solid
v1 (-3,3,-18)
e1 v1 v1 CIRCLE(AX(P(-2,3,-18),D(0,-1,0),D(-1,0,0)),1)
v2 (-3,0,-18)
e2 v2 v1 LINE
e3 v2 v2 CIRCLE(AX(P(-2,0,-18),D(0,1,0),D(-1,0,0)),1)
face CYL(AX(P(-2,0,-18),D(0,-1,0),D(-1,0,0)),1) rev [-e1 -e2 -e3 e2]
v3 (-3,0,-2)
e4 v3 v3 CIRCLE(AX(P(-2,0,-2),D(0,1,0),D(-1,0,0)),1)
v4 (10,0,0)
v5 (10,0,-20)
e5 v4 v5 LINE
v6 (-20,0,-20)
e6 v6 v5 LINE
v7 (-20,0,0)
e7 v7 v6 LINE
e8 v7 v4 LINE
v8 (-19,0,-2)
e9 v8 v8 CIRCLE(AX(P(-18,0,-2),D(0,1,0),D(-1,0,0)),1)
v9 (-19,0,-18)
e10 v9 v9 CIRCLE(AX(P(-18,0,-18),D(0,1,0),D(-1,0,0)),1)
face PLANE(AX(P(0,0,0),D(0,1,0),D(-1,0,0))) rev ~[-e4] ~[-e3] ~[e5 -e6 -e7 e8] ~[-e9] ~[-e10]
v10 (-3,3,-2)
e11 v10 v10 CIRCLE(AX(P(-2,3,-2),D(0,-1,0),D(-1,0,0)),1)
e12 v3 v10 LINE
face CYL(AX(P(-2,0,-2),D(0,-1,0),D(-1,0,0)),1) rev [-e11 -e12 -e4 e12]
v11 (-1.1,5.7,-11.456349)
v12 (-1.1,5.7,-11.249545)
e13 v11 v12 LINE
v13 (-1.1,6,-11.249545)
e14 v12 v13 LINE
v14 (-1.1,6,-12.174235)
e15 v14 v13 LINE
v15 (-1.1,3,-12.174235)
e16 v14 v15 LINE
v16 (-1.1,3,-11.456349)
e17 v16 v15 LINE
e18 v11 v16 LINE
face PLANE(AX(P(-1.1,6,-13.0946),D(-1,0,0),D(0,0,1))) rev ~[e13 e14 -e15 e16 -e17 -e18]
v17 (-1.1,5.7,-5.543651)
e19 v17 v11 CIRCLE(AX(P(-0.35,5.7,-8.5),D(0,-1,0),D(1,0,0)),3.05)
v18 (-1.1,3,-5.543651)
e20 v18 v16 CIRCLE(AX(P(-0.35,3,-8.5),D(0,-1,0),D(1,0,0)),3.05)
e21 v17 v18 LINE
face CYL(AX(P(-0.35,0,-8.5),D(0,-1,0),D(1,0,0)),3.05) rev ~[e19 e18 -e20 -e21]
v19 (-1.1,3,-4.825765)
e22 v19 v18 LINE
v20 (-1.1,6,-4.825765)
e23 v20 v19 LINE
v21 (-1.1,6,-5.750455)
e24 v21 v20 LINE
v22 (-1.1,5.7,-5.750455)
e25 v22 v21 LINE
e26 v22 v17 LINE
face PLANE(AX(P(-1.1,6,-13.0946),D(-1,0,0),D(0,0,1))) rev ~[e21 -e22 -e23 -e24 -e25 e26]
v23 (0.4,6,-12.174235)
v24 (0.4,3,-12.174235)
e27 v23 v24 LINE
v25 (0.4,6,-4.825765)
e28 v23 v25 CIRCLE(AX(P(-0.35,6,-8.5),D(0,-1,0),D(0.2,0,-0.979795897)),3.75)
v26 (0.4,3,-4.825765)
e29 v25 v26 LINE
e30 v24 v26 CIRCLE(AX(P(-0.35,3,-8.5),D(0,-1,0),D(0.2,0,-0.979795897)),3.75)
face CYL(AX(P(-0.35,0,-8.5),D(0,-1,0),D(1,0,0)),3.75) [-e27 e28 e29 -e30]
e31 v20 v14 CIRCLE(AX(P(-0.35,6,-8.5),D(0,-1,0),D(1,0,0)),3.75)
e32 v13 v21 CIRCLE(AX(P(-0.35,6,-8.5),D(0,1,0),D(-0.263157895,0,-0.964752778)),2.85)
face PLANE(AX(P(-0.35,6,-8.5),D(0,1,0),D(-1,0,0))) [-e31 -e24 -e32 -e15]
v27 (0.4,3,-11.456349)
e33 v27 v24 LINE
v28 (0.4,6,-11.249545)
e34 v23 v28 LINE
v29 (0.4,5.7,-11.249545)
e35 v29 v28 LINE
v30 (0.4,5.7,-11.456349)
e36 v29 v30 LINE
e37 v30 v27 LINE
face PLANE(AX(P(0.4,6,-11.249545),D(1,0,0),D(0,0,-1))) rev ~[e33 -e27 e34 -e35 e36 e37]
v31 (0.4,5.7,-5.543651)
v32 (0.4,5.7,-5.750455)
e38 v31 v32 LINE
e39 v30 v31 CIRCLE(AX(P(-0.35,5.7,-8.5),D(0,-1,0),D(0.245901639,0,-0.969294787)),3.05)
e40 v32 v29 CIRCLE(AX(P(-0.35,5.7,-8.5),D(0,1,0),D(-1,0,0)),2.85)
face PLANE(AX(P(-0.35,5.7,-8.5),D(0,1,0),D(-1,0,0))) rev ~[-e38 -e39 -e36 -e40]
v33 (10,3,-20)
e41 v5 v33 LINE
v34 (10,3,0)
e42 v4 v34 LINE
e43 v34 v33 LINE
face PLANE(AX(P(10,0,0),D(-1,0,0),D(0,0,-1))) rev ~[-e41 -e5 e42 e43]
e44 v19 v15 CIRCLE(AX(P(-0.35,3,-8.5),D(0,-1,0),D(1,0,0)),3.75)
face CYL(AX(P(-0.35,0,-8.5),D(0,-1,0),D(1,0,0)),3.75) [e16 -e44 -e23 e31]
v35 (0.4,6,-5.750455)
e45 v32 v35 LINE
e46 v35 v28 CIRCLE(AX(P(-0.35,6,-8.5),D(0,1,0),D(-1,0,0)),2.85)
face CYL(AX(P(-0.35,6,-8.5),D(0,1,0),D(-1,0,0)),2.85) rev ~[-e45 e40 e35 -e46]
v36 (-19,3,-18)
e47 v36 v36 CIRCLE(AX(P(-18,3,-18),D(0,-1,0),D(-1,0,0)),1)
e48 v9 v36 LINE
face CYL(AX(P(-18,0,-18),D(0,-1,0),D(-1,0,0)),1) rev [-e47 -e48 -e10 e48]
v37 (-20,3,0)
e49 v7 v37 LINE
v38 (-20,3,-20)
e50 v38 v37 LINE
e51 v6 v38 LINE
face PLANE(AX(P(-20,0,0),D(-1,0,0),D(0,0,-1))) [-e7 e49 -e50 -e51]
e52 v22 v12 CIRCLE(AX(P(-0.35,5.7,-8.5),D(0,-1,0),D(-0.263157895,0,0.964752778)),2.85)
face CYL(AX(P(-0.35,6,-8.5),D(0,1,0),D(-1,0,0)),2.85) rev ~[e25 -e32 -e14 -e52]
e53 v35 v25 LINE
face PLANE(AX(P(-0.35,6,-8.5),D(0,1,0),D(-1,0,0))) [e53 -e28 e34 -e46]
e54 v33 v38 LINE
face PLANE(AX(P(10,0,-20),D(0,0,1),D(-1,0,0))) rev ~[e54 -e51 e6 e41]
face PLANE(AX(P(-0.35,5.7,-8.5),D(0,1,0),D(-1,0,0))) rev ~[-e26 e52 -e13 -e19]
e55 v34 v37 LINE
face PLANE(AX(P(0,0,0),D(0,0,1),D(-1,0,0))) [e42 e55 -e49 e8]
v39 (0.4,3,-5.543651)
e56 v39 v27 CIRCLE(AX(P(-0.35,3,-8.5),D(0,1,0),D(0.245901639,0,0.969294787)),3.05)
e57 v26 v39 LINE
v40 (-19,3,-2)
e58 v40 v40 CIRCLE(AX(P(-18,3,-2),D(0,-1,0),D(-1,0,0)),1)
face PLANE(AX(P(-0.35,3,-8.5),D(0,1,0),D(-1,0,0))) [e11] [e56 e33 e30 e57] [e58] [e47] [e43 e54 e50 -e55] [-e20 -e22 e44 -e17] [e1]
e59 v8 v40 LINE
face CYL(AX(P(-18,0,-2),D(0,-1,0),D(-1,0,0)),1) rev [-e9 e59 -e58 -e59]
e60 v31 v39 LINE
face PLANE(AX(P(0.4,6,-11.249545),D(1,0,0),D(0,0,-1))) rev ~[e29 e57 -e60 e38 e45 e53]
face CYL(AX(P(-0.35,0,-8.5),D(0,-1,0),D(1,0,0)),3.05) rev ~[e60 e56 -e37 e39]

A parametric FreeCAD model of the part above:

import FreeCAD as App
import Part
import Sketcher

V = App.Vector

doc = App.newDocument("Part")
body = doc.addObject("PartDesign::Body", "Body")

sketch1 = body.newObject("Sketcher::SketchObject", "Sketch")
sketch1.AttachmentSupport = (doc.getObject("XZ_Plane"), [""])
sketch1.MapMode = "FlatFace"
sketch1.addGeometry(Part.LineSegment(V(10, 0, 0), V(10, -20, 0)), False)
sketch1.addGeometry(Part.LineSegment(V(10, -20, 0), V(-20, -20, 0)), False)
sketch1.addGeometry(Part.LineSegment(V(-20, -20, 0), V(-20, 0, 0)), False)
sketch1.addGeometry(Part.LineSegment(V(-20, 0, 0), V(10, 0, 0)), False)
sketch1.addGeometry(Part.Circle(V(-2, -2, 0), V(0, 0, 1), 1), False)
sketch1.addGeometry(Part.Circle(V(-18, -2, 0), V(0, 0, 1), 1), False)
sketch1.addGeometry(Part.Circle(V(-18, -18, 0), V(0, 0, 1), 1), False)
sketch1.addGeometry(Part.Circle(V(-2, -18, 0), V(0, 0, 1), 1), False)
sketch1.addConstraint(Sketcher.Constraint("Coincident", 0, 2, 1, 1))
sketch1.addConstraint(Sketcher.Constraint("Coincident", 1, 2, 2, 1))
sketch1.addConstraint(Sketcher.Constraint("Coincident", 2, 2, 3, 1))
sketch1.addConstraint(Sketcher.Constraint("Coincident", 3, 2, 0, 1))
sketch1.addConstraint(Sketcher.Constraint("Vertical", 0))
sketch1.addConstraint(Sketcher.Constraint("Horizontal", 1))
sketch1.addConstraint(Sketcher.Constraint("Vertical", 2))
sketch1.addConstraint(Sketcher.Constraint("Horizontal", 3))
sketch1.addConstraint(Sketcher.Constraint("Equal", 4, 5))
sketch1.addConstraint(Sketcher.Constraint("Equal", 5, 6))
sketch1.addConstraint(Sketcher.Constraint("Equal", 6, 7))
sketch1.addConstraint(Sketcher.Constraint("PointOnObject", 2, 2, -1))
sketch1.addConstraint(Sketcher.Constraint("Horizontal", 4, 3, 5, 3))
sketch1.addConstraint(Sketcher.Constraint("Horizontal", 6, 3, 7, 3))
sketch1.addConstraint(Sketcher.Constraint("Vertical", 5, 3, 6, 3))
sketch1.addConstraint(Sketcher.Constraint("Vertical", 4, 3, 7, 3))
sketch1.addConstraint(Sketcher.Constraint("Diameter", 4, 2.0))
sketch1.addConstraint(Sketcher.Constraint("DistanceY", 0, 2, 0, 1, 20.0))
sketch1.addConstraint(Sketcher.Constraint("DistanceX", 4, 3, -1, 1, 2.0))
sketch1.addConstraint(Sketcher.Constraint("DistanceY", 4, 3, -1, 1, 2.0))
sketch1.addConstraint(Sketcher.Constraint("DistanceX", -1, 1, 0, 2, 10.0))
sketch1.addConstraint(Sketcher.Constraint("DistanceX", 1, 2, -1, 1, 20.0))
sketch1.addConstraint(Sketcher.Constraint("DistanceY", 0, 2, 7, 3, 2.0))
sketch1.addConstraint(Sketcher.Constraint("DistanceX", 1, 2, 6, 3, 2.0))
pad1 = body.newObject("PartDesign::Pad", "Pad")
pad1.Profile = sketch1
pad1.Length = 3
pad1.Reversed = True

sketch2 = body.newObject("Sketcher::SketchObject", "Sketch001")
sketch2.AttachmentSupport = (doc.getObject("XZ_Plane"), [""])
sketch2.MapMode = "FlatFace"
sketch2.addGeometry(Part.Circle(V(-0.3, -8.5, 0), V(0, 0, 1), 3.8), False)
sketch2.addGeometry(Part.Circle(V(-0.3, -8.5, 0), V(0, 0, 1), 3), False)
sketch2.addConstraint(Sketcher.Constraint("Coincident", 1, 3, 0, 3))
sketch2.addConstraint(Sketcher.Constraint("Diameter", 0, 7.5))
sketch2.addConstraint(Sketcher.Constraint("Diameter", 1, 6.1))
sketch2.addConstraint(Sketcher.Constraint("DistanceY", 0, 3, -1, 1, 8.5))
sketch2.addConstraint(Sketcher.Constraint("DistanceX", 0, 3, -1, 1, 0.35))
pad2 = body.newObject("PartDesign::Pad", "Pad001")
pad2.Profile = sketch2
pad2.Length = 6
pad2.Reversed = True

sketch3 = body.newObject("Sketcher::SketchObject", "Sketch002")
sketch3.AttachmentSupport = (doc.getObject("XZ_Plane"), [""])
sketch3.MapMode = "FlatFace"
sketch3.AttachmentOffset = App.Placement(V(0, 0, -6), App.Rotation())
sketch3.addGeometry(Part.Circle(V(-0.3, -8.5, 0), V(0, 0, 1), 3), False)
sketch3.addGeometry(Part.Circle(V(-0.3, -8.5, 0), V(0, 0, 1), 2.9), False)
sketch3.addConstraint(Sketcher.Constraint("Coincident", 1, 3, 0, 3))
sketch3.addConstraint(Sketcher.Constraint("Diameter", 1, 5.7))
sketch3.addConstraint(Sketcher.Constraint("Diameter", 0, 6.1))
sketch3.addConstraint(Sketcher.Constraint("DistanceY", 0, 3, -1, 1, 8.5))
sketch3.addConstraint(Sketcher.Constraint("DistanceX", 0, 3, -1, 1, 0.35))
pad3 = body.newObject("PartDesign::Pad", "Pad002")
pad3.Profile = sketch3
pad3.Length = 0.3

sketch4 = body.newObject("Sketcher::SketchObject", "Sketch003")
sketch4.AttachmentSupport = (doc.getObject("XZ_Plane"), [""])
sketch4.MapMode = "FlatFace"
sketch4.AttachmentOffset = App.Placement(V(0, 0, -6), App.Rotation())
sketch4.addGeometry(Part.LineSegment(V(0.4, -13.1, 0), V(-1.1, -13.1, 0)), False)
sketch4.addGeometry(Part.LineSegment(V(-1.1, -13.1, 0), V(-1.1, -3.9, 0)), False)
sketch4.addGeometry(Part.LineSegment(V(-1.1, -3.9, 0), V(0.4, -3.9, 0)), False)
sketch4.addGeometry(Part.LineSegment(V(0.4, -3.9, 0), V(0.4, -13.1, 0)), False)
sketch4.addConstraint(Sketcher.Constraint("Coincident", 0, 2, 1, 1))
sketch4.addConstraint(Sketcher.Constraint("Coincident", 1, 2, 2, 1))
sketch4.addConstraint(Sketcher.Constraint("Coincident", 2, 2, 3, 1))
sketch4.addConstraint(Sketcher.Constraint("Coincident", 3, 2, 0, 1))
sketch4.addConstraint(Sketcher.Constraint("Horizontal", 0))
sketch4.addConstraint(Sketcher.Constraint("Vertical", 1))
sketch4.addConstraint(Sketcher.Constraint("Horizontal", 2))
sketch4.addConstraint(Sketcher.Constraint("Vertical", 3))
sketch4.addConstraint(Sketcher.Constraint("DistanceX", 0, 2, 0, 1, 1.5))
sketch4.addConstraint(Sketcher.Constraint("DistanceX", 0, 2, -1, 1, 1.1))
sketch4.addConstraint(Sketcher.Constraint("DistanceY", 1, 1, 1, 2, 9.1892))
sketch4.addConstraint(Sketcher.Constraint("DistanceY", 0, 2, -1, 1, 13.0946))
pocket1 = body.newObject("PartDesign::Pocket", "Pocket")
pocket1.Profile = sketch4
pocket1.Length = 3
pocket1.Reversed = True

doc.recompute()
